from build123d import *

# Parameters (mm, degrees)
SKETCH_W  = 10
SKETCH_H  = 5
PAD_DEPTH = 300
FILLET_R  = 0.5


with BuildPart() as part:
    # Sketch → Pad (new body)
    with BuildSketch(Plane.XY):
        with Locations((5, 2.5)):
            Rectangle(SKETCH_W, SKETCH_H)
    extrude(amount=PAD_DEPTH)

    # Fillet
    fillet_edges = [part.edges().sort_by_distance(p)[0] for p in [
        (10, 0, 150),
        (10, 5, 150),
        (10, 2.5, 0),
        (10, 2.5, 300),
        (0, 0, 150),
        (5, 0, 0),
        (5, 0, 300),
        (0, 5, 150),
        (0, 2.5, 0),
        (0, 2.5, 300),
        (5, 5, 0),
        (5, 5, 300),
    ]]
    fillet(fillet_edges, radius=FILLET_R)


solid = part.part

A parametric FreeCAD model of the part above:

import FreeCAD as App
import Part
import Sketcher
from FreeCAD import Vector
Q = App.Units.Quantity


def add_polygon(sketch, points):
    """Adds a closed chain of lines whose ends are joined by coincident constraints."""
    first, n = sketch.GeometryCount, len(points)
    for a, b in zip(points, points[1:] + points[:1]):
        sketch.addGeometry(Part.LineSegment(App.Vector(*a, 0), App.Vector(*b, 0)), False)
    for i in range(n):
        sketch.addConstraint(Sketcher.Constraint("Coincident", first + i, 2, first + (i + 1) % n, 1))

doc = App.newDocument("Part")
params = doc.addObject("Spreadsheet::Sheet", "Params")
for row, (alias, value) in enumerate([
    ("sketch1_width", "10 mm"),
    ("sketch1_height", "5 mm"),
    ("pad1_length", "300 mm"),
    ("fillet_radius", "0.5 mm"),
], start=1):
    params.set(f"A{row}", alias)
    params.set(f"B{row}", "=" + value)
    params.setAlias(f"B{row}", alias)

body = doc.addObject("PartDesign::Body", "Body")

# Sketch on XY plane
sketch1 = body.newObject("Sketcher::SketchObject", "Sketch")
sketch1.AttachmentSupport = (doc.getObject("XY_Plane"), [""])
sketch1.MapMode = "FlatFace"
add_polygon(sketch1, [(0, 5), (0, 0), (10, 0), (10, 5)])  # lines 0-3
sketch1.addConstraint(Sketcher.Constraint("Vertical", 0))
sketch1.addConstraint(Sketcher.Constraint("Horizontal", 1))
sketch1.addConstraint(Sketcher.Constraint("Vertical", 2))
sketch1.addConstraint(Sketcher.Constraint("Horizontal", 3))
sketch1.addConstraint(Sketcher.Constraint("Coincident", 0, 2, -1, 1))
sketch1.addConstraint(Sketcher.Constraint("DistanceX", 1, 1, 1, 2, Q("10 mm")))
sketch1.addConstraint(Sketcher.Constraint("DistanceY", 0, 2, 0, 1, Q("5 mm")))
sketch1.setExpression("Constraints[9]", "Params.sketch1_width")
sketch1.setExpression("Constraints[10]", "Params.sketch1_height")
pad1 = body.newObject("PartDesign::Pad", "Pad")
pad1.Profile = sketch1
pad1.setExpression("Length", "Params.pad1_length")
doc.recompute()

fillet = body.newObject("PartDesign::Fillet", "Fillet")
fillet.Base = (pad1, ["Edge1"])
fillet.UseAllEdges = True
fillet.setExpression("Radius", "Params.fillet_radius")

doc.recompute()
